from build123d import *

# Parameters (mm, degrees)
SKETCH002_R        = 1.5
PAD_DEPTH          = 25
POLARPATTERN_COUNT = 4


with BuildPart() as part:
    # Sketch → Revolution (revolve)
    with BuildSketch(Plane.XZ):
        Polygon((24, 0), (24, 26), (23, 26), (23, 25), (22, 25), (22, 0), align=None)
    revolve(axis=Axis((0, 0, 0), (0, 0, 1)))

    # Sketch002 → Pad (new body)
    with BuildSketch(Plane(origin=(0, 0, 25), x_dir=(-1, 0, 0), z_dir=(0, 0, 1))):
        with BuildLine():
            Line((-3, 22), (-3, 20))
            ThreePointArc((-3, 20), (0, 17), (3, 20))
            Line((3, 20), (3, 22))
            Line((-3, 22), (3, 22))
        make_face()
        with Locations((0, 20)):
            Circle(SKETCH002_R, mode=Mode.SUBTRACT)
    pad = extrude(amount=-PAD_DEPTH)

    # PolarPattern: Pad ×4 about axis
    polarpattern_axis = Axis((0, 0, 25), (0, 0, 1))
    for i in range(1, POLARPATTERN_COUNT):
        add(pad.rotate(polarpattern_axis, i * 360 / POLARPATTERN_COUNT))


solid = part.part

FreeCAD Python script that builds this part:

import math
import FreeCAD as App
import Part
import Sketcher
Q = App.Units.Quantity

doc = App.newDocument("Part")
body = doc.addObject("PartDesign::Body", "Body")

# Sketch on XZ plane
sketch1 = body.newObject("Sketcher::SketchObject", "Sketch")
sketch1.AttachmentSupport = (doc.getObject("XZ_Plane"), [""])
sketch1.MapMode = "FlatFace"
sketch1.addGeometry([
    Part.LineSegment(App.Vector(24, 0, 0), App.Vector(24, 26, 0)),  # 0
    Part.LineSegment(App.Vector(24, 26, 0), App.Vector(23, 26, 0)),  # 1
    Part.LineSegment(App.Vector(23, 26, 0), App.Vector(23, 25, 0)),  # 2
    Part.LineSegment(App.Vector(23, 25, 0), App.Vector(22, 25, 0)),  # 3
    Part.LineSegment(App.Vector(22, 25, 0), App.Vector(22, 0, 0)),  # 4
    Part.LineSegment(App.Vector(22, 0, 0), App.Vector(24, 0, 0)),  # 5
], False)
sketch1.addConstraint([
    Sketcher.Constraint("Coincident", 0, 2, 1, 1),
    Sketcher.Constraint("Coincident", 1, 2, 2, 1),
    Sketcher.Constraint("Coincident", 2, 2, 3, 1),
    Sketcher.Constraint("Coincident", 3, 2, 4, 1),
    Sketcher.Constraint("Coincident", 4, 2, 5, 1),
    Sketcher.Constraint("Coincident", 5, 2, 0, 1),
    Sketcher.Constraint("Vertical", 0),
    Sketcher.Constraint("Horizontal", 1),
    Sketcher.Constraint("Vertical", 2),
    Sketcher.Constraint("Horizontal", 3),
    Sketcher.Constraint("Vertical", 4),
    Sketcher.Constraint("Horizontal", 5),
    Sketcher.Constraint("PointOnObject", 4, 2, -1),
    Sketcher.Constraint("Equal", 1, 3),
    Sketcher.Constraint("Equal", 3, 2),
    Sketcher.Constraint("DistanceX", 1, 2, 1, 1, Q("1 mm")),
    Sketcher.Constraint("DistanceY", 0, 1, 0, 2, Q("26 mm")),
    Sketcher.Constraint("DistanceX", -1, 1, 0, 2, Q("24 mm")),
])
revolution = body.newObject("PartDesign::Revolution", "Revolution")
revolution.Profile = sketch1
revolution.ReferenceAxis = (sketch1, ["V_Axis"])
revolution.Angle = 360

# Sketch on XY plane
sketch2 = body.newObject("Sketcher::SketchObject", "Sketch001")
sketch2.AttachmentSupport = (doc.getObject("XY_Plane"), [""])
sketch2.MapMode = "FlatFace"
sketch2.AttachmentOffset = App.Placement(App.Vector(0, 0, 25), App.Rotation())
sketch2.addGeometry([
    Part.LineSegment(App.Vector(3, -22, 0), App.Vector(3, -20, 0)),  # 0
    Part.ArcOfCircle(Part.Circle(App.Vector(0, -20, 0), App.Vector(0, 0, 1), 3), math.radians(0), math.radians(180)),  # 1
    Part.LineSegment(App.Vector(-3, -20, 0), App.Vector(-3, -22, 0)),  # 2
    Part.LineSegment(App.Vector(-3, -22, 0), App.Vector(3, -22, 0)),  # 3
    Part.Circle(App.Vector(0, -20, 0), App.Vector(0, 0, 1), 1.5),  # 4
], False)
sketch2.addConstraint([
    Sketcher.Constraint("Tangent", 0, 2, 1, 1),
    Sketcher.Constraint("Tangent", 1, 2, 2, 1),
    Sketcher.Constraint("Coincident", 2, 2, 3, 1),
    Sketcher.Constraint("Coincident", 3, 2, 0, 1),
    Sketcher.Constraint("Vertical", 0),
    Sketcher.Constraint("Vertical", 2),
    Sketcher.Constraint("Horizontal", 3),
    Sketcher.Constraint("Coincident", 4, 3, 1, 3),
    Sketcher.Constraint("PointOnObject", 1, 3, -2),
    Sketcher.Constraint("Diameter", 4, Q("3 mm")),
    Sketcher.Constraint("Radius", 1, Q("3 mm")),
    Sketcher.Constraint("DistanceY", 0, 1, 0, 2, Q("2 mm")),
    Sketcher.Constraint("DistanceY", 1, 3, -1, 1, Q("20 mm")),
])
pad1 = body.newObject("PartDesign::Pad", "Pad")
pad1.Profile = sketch2
pad1.Length = 25
pad1.Reversed = True
doc.recompute()

polarpattern = body.newObject("PartDesign::PolarPattern", "PolarPattern")
polarpattern.Originals = [pad1]
polarpattern.Axis = (doc.getObject("Z_Axis"), [""])
polarpattern.Angle = 360
polarpattern.Occurrences = 4
body.Tip = polarpattern

doc.recompute()
